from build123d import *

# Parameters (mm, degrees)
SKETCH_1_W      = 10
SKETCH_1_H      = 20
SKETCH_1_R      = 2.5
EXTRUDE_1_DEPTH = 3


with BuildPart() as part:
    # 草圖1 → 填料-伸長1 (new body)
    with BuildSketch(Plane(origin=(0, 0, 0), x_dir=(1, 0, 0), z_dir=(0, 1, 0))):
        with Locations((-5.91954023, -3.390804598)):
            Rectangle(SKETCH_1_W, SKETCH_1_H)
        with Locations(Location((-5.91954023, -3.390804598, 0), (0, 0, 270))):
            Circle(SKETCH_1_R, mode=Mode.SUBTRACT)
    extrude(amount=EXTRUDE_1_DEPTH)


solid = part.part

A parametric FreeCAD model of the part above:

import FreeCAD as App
import Part
import Sketcher

doc = App.newDocument("Part")
body = doc.addObject("PartDesign::Body", "Body")

# Sketch on XZ plane
sketch1 = body.newObject("Sketcher::SketchObject", "Sketch")
sketch1.AttachmentSupport = (doc.getObject("XZ_Plane"), [""])
sketch1.MapMode = "FlatFace"
sketch1.addGeometry([
    Part.LineSegment(App.Vector(-10.9, -6.6, 0), App.Vector(-10.9, 13.4, 0)),  # 0
    Part.LineSegment(App.Vector(-10.9, 13.4, 0), App.Vector(-0.9, 13.4, 0)),  # 1
    Part.LineSegment(App.Vector(-0.9, 13.4, 0), App.Vector(-0.9, -6.6, 0)),  # 2
    Part.LineSegment(App.Vector(-0.9, -6.6, 0), App.Vector(-10.9, -6.6, 0)),  # 3
    Part.Circle(App.Vector(-5.9, 3.4, 0), App.Vector(0, 0, 1), 2.5),  # 4
], False)
sketch1.addConstraint([
    Sketcher.Constraint("Coincident", 0, 2, 1, 1),
    Sketcher.Constraint("Coincident", 1, 2, 2, 1),
    Sketcher.Constraint("Coincident", 2, 2, 3, 1),
    Sketcher.Constraint("Coincident", 3, 2, 0, 1),
    Sketcher.Constraint("Vertical", 0),
    Sketcher.Constraint("Horizontal", 1),
    Sketcher.Constraint("Vertical", 2),
    Sketcher.Constraint("Horizontal", 3),
    Sketcher.Constraint("Diameter", 4, 5.0),
    Sketcher.Constraint("DistanceX", 1, 1, 1, 2, 10.0),
    Sketcher.Constraint("DistanceY", 0, 1, 0, 2, 20.0),
    Sketcher.Constraint("DistanceX", 0, 2, 4, 3, 5.0),
    Sketcher.Constraint("DistanceY", 4, 3, 0, 2, 10.0),
    Sketcher.Constraint("DistanceX", 4, 3, -1, 1, 5.91954),
    Sketcher.Constraint("DistanceY", -1, 1, 4, 3, 3.390805),
])
pad1 = body.newObject("PartDesign::Pad", "Pad")
pad1.Profile = sketch1
pad1.Length = 3
pad1.Reversed = True

doc.recompute()
